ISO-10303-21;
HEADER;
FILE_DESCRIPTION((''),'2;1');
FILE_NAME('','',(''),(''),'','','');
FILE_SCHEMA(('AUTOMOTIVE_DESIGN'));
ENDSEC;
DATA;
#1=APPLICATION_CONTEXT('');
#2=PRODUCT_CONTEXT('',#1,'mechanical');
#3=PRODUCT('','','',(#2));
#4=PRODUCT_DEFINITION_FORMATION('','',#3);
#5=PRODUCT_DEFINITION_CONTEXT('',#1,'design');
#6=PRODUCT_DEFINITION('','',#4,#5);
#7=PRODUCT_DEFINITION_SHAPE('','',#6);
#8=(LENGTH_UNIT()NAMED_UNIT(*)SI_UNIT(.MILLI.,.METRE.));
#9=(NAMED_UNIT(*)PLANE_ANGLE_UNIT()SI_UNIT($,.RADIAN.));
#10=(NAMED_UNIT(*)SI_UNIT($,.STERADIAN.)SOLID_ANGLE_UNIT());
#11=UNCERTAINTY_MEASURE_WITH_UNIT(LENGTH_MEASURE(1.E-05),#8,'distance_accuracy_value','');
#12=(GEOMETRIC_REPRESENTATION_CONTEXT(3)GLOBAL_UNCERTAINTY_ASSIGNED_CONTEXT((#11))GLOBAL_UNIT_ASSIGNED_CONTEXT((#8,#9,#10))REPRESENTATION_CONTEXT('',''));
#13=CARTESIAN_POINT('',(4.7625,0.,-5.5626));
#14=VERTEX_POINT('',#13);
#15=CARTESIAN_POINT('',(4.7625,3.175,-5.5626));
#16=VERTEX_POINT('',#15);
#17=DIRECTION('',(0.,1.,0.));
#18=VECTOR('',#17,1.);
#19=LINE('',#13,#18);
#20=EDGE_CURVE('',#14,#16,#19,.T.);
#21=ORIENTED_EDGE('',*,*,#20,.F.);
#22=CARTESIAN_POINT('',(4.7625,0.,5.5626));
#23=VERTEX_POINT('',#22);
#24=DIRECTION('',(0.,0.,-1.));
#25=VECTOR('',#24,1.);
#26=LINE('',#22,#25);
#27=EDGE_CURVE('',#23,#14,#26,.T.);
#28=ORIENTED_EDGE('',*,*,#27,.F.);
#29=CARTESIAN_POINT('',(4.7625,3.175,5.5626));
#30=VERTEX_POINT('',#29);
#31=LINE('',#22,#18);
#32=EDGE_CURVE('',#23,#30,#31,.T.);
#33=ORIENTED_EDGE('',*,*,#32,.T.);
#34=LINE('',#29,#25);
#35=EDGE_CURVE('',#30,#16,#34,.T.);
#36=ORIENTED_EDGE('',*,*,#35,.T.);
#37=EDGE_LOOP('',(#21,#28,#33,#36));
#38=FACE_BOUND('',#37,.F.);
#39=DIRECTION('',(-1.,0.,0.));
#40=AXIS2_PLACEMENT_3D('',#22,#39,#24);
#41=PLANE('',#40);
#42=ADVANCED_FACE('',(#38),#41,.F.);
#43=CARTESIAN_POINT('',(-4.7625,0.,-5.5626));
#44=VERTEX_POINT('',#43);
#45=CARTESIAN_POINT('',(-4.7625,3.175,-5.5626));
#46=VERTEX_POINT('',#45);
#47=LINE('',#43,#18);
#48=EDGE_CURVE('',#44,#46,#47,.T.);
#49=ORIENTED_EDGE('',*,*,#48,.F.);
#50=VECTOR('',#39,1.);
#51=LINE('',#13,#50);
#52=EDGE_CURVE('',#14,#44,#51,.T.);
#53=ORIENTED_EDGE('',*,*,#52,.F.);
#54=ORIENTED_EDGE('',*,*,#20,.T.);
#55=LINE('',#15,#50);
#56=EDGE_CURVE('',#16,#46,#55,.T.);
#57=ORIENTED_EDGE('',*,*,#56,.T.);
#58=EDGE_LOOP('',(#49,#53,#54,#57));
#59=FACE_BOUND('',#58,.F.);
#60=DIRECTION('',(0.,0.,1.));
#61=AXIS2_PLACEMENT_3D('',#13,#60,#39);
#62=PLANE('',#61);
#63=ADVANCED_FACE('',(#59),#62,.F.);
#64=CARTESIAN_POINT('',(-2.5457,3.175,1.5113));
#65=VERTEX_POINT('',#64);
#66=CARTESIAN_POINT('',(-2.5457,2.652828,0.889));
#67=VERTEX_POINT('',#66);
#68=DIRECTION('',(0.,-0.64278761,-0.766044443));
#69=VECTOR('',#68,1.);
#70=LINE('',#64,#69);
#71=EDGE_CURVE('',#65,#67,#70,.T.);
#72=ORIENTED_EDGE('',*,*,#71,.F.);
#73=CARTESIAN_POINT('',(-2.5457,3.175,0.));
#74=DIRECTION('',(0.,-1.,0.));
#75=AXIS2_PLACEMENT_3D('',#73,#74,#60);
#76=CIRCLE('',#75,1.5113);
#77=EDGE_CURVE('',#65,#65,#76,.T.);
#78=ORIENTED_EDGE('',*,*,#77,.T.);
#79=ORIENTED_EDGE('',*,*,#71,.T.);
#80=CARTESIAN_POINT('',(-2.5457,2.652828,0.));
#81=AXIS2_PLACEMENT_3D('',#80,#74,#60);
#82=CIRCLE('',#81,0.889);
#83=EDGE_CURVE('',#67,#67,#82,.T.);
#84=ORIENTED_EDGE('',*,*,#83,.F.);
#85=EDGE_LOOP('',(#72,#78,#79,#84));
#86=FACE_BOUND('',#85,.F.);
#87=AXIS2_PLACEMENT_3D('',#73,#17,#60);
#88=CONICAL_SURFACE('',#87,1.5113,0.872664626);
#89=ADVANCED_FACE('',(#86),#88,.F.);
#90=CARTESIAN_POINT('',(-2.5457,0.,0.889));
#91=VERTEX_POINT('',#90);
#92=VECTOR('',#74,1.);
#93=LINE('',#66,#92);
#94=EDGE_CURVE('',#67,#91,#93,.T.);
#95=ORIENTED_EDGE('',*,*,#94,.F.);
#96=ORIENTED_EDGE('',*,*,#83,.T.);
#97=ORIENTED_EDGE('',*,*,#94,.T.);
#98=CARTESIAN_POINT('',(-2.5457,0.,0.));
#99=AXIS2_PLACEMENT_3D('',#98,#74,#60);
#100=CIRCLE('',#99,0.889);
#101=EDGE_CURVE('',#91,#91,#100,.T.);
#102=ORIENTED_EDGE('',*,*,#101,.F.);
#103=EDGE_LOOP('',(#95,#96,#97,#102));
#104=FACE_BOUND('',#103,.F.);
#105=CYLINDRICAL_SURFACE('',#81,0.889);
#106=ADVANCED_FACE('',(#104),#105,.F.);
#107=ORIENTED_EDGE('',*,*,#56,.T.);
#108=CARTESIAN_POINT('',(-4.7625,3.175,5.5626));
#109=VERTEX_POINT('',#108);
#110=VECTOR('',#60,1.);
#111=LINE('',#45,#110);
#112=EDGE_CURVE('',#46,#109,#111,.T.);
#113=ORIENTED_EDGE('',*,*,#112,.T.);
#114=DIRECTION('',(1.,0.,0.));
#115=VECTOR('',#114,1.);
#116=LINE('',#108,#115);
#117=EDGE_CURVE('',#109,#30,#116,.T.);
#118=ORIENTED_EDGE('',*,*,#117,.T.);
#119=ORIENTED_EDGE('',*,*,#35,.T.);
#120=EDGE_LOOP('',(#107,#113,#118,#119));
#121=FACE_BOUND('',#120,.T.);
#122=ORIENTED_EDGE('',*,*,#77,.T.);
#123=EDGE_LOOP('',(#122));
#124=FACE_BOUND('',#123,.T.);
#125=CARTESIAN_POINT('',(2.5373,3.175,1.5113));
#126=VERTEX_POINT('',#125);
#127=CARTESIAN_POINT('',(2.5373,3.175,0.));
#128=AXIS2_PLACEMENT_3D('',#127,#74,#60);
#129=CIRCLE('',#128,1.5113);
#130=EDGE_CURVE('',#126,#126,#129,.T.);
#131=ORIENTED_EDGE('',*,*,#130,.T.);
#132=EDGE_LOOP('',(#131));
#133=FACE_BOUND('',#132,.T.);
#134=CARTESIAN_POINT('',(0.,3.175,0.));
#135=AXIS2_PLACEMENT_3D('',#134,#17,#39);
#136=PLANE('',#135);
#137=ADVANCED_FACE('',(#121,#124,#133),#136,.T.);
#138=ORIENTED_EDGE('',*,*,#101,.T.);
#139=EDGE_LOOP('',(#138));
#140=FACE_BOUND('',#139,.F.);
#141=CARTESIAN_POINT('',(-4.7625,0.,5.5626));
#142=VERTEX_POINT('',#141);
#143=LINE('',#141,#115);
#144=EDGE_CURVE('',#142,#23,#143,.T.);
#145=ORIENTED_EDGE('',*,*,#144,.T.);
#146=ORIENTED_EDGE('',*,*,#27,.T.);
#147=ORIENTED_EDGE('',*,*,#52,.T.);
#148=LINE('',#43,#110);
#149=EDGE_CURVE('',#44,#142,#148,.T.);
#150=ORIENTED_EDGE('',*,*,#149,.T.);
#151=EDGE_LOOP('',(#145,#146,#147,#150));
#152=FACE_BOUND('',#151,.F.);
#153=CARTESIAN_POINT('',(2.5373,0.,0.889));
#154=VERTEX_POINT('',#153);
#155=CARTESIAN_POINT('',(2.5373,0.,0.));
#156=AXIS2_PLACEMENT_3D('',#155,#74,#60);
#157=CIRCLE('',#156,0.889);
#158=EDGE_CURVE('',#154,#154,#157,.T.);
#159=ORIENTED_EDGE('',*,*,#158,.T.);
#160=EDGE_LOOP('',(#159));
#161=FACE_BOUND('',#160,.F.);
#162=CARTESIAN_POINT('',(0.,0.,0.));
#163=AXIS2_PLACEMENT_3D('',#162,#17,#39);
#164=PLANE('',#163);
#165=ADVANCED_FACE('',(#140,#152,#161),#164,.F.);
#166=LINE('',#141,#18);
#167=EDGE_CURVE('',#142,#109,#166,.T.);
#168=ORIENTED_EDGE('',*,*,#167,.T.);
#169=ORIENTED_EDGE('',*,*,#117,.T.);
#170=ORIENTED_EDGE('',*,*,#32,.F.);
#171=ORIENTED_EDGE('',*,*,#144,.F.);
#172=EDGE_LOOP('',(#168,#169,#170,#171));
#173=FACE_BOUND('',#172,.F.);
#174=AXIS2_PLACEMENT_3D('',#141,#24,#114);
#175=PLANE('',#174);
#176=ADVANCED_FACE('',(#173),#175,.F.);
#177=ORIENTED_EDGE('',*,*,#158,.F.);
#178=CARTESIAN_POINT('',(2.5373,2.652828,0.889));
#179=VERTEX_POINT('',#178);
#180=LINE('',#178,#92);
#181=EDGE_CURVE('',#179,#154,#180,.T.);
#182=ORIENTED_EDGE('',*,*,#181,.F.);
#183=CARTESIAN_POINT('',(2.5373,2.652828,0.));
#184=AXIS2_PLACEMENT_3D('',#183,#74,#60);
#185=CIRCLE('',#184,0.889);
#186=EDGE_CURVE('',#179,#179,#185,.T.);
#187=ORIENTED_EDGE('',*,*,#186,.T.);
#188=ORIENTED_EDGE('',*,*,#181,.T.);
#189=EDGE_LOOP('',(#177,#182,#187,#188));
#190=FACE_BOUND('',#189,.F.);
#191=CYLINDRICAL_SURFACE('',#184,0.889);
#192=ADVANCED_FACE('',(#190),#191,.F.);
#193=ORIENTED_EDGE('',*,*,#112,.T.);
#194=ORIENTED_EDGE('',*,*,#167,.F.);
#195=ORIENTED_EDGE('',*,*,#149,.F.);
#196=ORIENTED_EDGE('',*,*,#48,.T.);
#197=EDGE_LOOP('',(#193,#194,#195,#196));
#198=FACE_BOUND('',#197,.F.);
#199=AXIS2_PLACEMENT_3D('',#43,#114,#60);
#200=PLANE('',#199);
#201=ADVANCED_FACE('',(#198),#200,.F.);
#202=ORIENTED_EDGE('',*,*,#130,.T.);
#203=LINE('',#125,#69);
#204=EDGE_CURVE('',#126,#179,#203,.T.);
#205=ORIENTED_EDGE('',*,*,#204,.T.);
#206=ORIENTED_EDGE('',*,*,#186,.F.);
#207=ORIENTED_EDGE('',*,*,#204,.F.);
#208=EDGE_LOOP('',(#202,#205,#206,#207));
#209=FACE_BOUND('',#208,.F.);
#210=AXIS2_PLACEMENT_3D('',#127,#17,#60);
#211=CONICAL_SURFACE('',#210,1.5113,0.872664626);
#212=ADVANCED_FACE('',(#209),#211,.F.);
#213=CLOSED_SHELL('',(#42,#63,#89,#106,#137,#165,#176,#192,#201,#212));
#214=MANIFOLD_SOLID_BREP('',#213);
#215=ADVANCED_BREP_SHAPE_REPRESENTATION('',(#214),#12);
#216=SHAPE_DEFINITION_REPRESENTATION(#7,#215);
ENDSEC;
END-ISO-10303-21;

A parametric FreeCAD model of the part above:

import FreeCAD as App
import Part
import Sketcher
from FreeCAD import Vector
Q = App.Units.Quantity


def add_polygon(sketch, points):
    """Adds a closed chain of lines whose ends are joined by coincident constraints."""
    first, n = sketch.GeometryCount, len(points)
    for a, b in zip(points, points[1:] + points[:1]):
        sketch.addGeometry(Part.LineSegment(App.Vector(*a, 0), App.Vector(*b, 0)), False)
    for i in range(n):
        sketch.addConstraint(Sketcher.Constraint("Coincident", first + i, 2, first + (i + 1) % n, 1))

doc = App.newDocument("Part")
params = doc.addObject("Spreadsheet::Sheet", "Params")
for row, (alias, value) in enumerate([
    ("sketch1_width", "0.375 in"),
    ("sketch1_height", "0.438 in"),
    ("pad1_length", "0.125 in"),
    ("sketch2_diameter", "0.07 in"),
    ("hole_diameter", "0.07 in"),
    ("hole_csink_diameter", "0.119 in"),
], start=1):
    params.set(f"A{row}", alias)
    params.set(f"B{row}", "=" + value)
    params.setAlias(f"B{row}", alias)

body = doc.addObject("PartDesign::Body", "Body")

sketch1 = doc.addObject("Sketcher::SketchObject", "Sketch")
body.addObject(sketch1)
sketch1.AttachmentSupport = (doc.XZ_Plane, [""])
sketch1.MapMode = "FlatFace"
add_polygon(sketch1, [(-5, -6), (-5, 6), (5, 6), (5, -6)])
sketch1.addConstraint([
    Sketcher.Constraint("Vertical", 0),
    Sketcher.Constraint("Horizontal", 1),
    Sketcher.Constraint("Vertical", 2),
    Sketcher.Constraint("Horizontal", 3),
    Sketcher.Constraint("Symmetric", 0, 2, 2, 2, -1, 1),
    Sketcher.Constraint("DistanceX", 1, 1, 1, 2, Q("0.375 in")),
    Sketcher.Constraint("DistanceY", 0, 1, 0, 2, Q("0.438 in")),
])
sketch1.setExpression("Constraints[9]", "Params.sketch1_width")
sketch1.setExpression("Constraints[10]", "Params.sketch1_height")
pad1 = doc.addObject("PartDesign::Pad", "Pad")
body.addObject(pad1)
pad1.Profile = sketch1
pad1.setExpression("Length", "Params.pad1_length")
pad1.Reversed = True

sketch2 = doc.addObject("Sketcher::SketchObject", "Sketch001")
body.addObject(sketch2)
sketch2.AttachmentSupport = (doc.XZ_Plane, [""])
sketch2.MapMode = "FlatFace"
sketch2.AttachmentOffset = App.Placement(Vector(0, 0, -0.125 * 25.4), App.Rotation())
sketch2.addGeometry([
    Part.Circle(Vector(2.5, 0, 0), Vector(0, 0, 1), 0.9),
    Part.Circle(Vector(-2.5, 0, 0), Vector(0, 0, 1), 0.9),
], False)
sketch2.addConstraint([
    Sketcher.Constraint("Equal", 0, 1),
    Sketcher.Constraint("PointOnObject", 0, 3, -1),
    Sketcher.Constraint("PointOnObject", 1, 3, -1),
    Sketcher.Constraint("Diameter", 0, Q("0.07 in")),
    Sketcher.Constraint("DistanceX", -1, 1, 0, 3, Q("0.0999 in")),
    Sketcher.Constraint("DistanceX", 1, 3, -1, 1, 2.5457),
])
sketch2.setExpression("Constraints[3]", "Params.sketch2_diameter")
doc.recompute()
hole = doc.addObject("PartDesign::Hole", "Hole")
body.addObject(hole)
hole.Profile = sketch2
hole.ThreadType = "None"
hole.setExpression("Diameter", "Params.hole_diameter")
hole.DepthType = "ThroughAll"
hole.HoleCutType = "Countersink"
hole.setExpression("HoleCutDiameter", "Params.hole_csink_diameter")
hole.HoleCutCountersinkAngle = 100
hole.Reversed = True

doc.recompute()
